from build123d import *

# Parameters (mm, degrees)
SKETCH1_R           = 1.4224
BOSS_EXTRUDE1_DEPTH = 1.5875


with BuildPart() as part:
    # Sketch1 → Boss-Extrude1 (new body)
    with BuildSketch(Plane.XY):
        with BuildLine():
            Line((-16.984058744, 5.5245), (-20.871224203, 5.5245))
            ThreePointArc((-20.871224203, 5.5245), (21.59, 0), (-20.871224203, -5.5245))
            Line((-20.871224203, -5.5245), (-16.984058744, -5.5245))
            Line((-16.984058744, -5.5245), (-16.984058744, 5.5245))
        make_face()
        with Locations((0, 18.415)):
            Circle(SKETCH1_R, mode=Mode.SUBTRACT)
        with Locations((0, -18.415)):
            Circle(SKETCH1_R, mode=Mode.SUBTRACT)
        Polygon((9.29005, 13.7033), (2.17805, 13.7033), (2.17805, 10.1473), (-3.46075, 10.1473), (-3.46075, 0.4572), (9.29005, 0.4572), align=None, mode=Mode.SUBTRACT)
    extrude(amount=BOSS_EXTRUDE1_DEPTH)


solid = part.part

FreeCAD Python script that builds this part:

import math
import FreeCAD as App
import Part
import Sketcher
Q = App.Units.Quantity


def add_polygon(sketch, points):
    """Adds a closed chain of lines whose ends are joined by coincident constraints."""
    first, n = sketch.GeometryCount, len(points)
    for a, b in zip(points, points[1:] + points[:1]):
        sketch.addGeometry(Part.LineSegment(App.Vector(*a, 0), App.Vector(*b, 0)), False)
    for i in range(n):
        sketch.addConstraint(Sketcher.Constraint("Coincident", first + i, 2, first + (i + 1) % n, 1))

doc = App.newDocument("Part")
body = doc.addObject("PartDesign::Body", "Body")

# Sketch on XY plane
sketch1 = body.newObject("Sketcher::SketchObject", "Sketch")
sketch1.AttachmentSupport = (doc.getObject("XY_Plane"), [""])
sketch1.MapMode = "FlatFace"
sketch1.addGeometry(Part.LineSegment(App.Vector(-20.9, 5.5, 0), App.Vector(-17, 5.5, 0)), False)  # 0
sketch1.addGeometry(Part.LineSegment(App.Vector(-17, 5.5, 0), App.Vector(-17, -5.5, 0)), False)  # 1
sketch1.addGeometry(Part.LineSegment(App.Vector(-17, -5.5, 0), App.Vector(-20.9, -5.5, 0)), False)  # 2
sketch1.addGeometry(Part.ArcOfCircle(Part.Circle(App.Vector(0, 0, 0), App.Vector(0, 0, 1), 21.6), math.radians(-165), math.radians(165)), False)  # 3
sketch1.addGeometry(Part.Circle(App.Vector(0, -18.4, 0), App.Vector(0, 0, 1), 1.4), False)  # 4
add_polygon(sketch1, [(9.3, 13.7), (9.3, 0.5), (-3.5, 0.5), (-3.5, 10.1), (2.2, 10.1), (2.2, 13.7)])  # lines 5-10
sketch1.addGeometry(Part.Circle(App.Vector(0, 18.4, 0), App.Vector(0, 0, 1), 1.4), False)  # 11
sketch1.addConstraint([
    Sketcher.Constraint("Coincident", 0, 2, 1, 1),
    Sketcher.Constraint("Coincident", 1, 2, 2, 1),
    Sketcher.Constraint("Coincident", 2, 2, 3, 1),
    Sketcher.Constraint("Coincident", 3, 2, 0, 1),
    Sketcher.Constraint("Horizontal", 0),
    Sketcher.Constraint("Vertical", 1),
    Sketcher.Constraint("Horizontal", 2),
    Sketcher.Constraint("Vertical", 5),
    Sketcher.Constraint("Horizontal", 6),
    Sketcher.Constraint("Vertical", 7),
    Sketcher.Constraint("Horizontal", 8),
    Sketcher.Constraint("Vertical", 9),
    Sketcher.Constraint("Horizontal", 10),
    Sketcher.Constraint("Coincident", 3, 3, -1, 1),
    Sketcher.Constraint("Equal", 4, 11),
    Sketcher.Constraint("Symmetric", 4, 3, 11, 3, -1, 1),
    Sketcher.Constraint("PointOnObject", 4, 3, -2),
    Sketcher.Constraint("Vertical", 2, 2, 3, 2),
    Sketcher.Constraint("Radius", 3, Q("0.85 in")),
    Sketcher.Constraint("Diameter", 4, Q("0.112 in")),
    Sketcher.Constraint("DistanceX", 10, 1, 10, 2, Q("0.28 in")),
    Sketcher.Constraint("DistanceY", 9, 1, 9, 2, Q("0.14 in")),
    Sketcher.Constraint("DistanceX", 6, 2, 6, 1, Q("0.502 in")),
    Sketcher.Constraint("DistanceY", 1, 2, 1, 1, Q("0.435 in")),
    Sketcher.Constraint("DistanceY", 4, 3, 11, 3, Q("1.45 in")),
    Sketcher.Constraint("DistanceY", 5, 2, 5, 1, Q("0.5215 in")),
    Sketcher.Constraint("DistanceY", -1, 1, 5, 2, Q("0.018 in")),
    Sketcher.Constraint("DistanceX", 0, 1, 0, 2, Q("3.887165 mm")),
    Sketcher.Constraint("DistanceX", -1, 1, 5, 2, Q("9.29005 mm")),
])
pad1 = body.newObject("PartDesign::Pad", "Pad")
pad1.Profile = sketch1
pad1.Length = Q("0.0625 in")

doc.recompute()
